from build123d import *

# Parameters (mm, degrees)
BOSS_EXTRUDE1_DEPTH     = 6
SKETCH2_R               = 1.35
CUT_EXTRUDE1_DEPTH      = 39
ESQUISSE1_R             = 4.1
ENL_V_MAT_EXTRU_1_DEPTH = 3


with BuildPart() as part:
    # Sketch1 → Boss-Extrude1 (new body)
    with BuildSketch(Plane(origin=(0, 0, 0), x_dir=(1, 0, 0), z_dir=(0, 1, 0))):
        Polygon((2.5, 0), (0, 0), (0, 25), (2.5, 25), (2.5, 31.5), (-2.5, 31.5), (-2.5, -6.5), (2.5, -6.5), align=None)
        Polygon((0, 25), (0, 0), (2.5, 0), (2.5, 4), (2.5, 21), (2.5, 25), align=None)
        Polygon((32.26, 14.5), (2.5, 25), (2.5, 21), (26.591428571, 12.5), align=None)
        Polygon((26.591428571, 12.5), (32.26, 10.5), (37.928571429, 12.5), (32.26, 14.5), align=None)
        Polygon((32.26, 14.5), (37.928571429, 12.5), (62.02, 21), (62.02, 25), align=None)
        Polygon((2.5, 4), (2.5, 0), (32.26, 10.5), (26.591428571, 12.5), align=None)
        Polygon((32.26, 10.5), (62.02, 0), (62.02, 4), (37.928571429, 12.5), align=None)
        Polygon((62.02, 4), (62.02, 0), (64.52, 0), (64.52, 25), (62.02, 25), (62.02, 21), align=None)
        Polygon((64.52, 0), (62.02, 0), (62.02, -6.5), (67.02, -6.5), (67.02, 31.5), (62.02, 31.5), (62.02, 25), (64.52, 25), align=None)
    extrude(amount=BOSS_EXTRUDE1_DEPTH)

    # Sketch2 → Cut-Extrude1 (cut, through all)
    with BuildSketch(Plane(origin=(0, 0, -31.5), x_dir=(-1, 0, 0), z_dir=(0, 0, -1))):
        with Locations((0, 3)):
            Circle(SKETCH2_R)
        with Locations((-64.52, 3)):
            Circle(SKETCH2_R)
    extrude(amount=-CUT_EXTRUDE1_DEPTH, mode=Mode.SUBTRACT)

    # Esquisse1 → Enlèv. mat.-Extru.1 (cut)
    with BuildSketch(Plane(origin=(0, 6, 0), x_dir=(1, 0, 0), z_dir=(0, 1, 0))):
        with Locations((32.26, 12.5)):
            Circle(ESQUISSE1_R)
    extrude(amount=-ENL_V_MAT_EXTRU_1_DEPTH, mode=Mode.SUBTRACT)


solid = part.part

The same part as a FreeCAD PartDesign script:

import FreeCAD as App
import Part
import Sketcher

V = App.Vector


def add_polygon(sketch, points):
    """Adds a closed chain of lines whose ends are joined by coincident constraints."""
    first, n = sketch.GeometryCount, len(points)
    for a, b in zip(points, points[1:] + points[:1]):
        sketch.addGeometry(Part.LineSegment(App.Vector(*a, 0), App.Vector(*b, 0)), False)
    for i in range(n):
        sketch.addConstraint(Sketcher.Constraint("Coincident", first + i, 2, first + (i + 1) % n, 1))

doc = App.newDocument("Part")
body = doc.addObject("PartDesign::Body", "Body")

sketch1 = doc.addObject("Sketcher::SketchObject", "Sketch")
body.addObject(sketch1)
sketch1.AttachmentSupport = (doc.XZ_Plane, [""])
sketch1.MapMode = "FlatFace"
add_polygon(sketch1, [(2.5, -31.5), (-2.5, -31.5), (-2.5, 6.5), (2.5, 6.5), (2.5, 0), (32.26, -10.5), (62.02, 0), (62.02, 6.5), (67.02, 6.5), (67.02, -31.5), (62.02, -31.5), (62.02, -25), (32.26, -14.5), (2.5, -25)])
add_polygon(sketch1, [(62.02, -4), (37.928571, -12.5), (62.02, -21)])
add_polygon(sketch1, [(2.5, -4), (2.5, -21), (26.591429, -12.5)])
sketch1.addConstraint(Sketcher.Constraint("Horizontal", 0))
sketch1.addConstraint(Sketcher.Constraint("Vertical", 1))
sketch1.addConstraint(Sketcher.Constraint("Horizontal", 2))
sketch1.addConstraint(Sketcher.Constraint("Vertical", 3))
sketch1.addConstraint(Sketcher.Constraint("Vertical", 6))
sketch1.addConstraint(Sketcher.Constraint("Horizontal", 7))
sketch1.addConstraint(Sketcher.Constraint("Vertical", 8))
sketch1.addConstraint(Sketcher.Constraint("Horizontal", 9))
sketch1.addConstraint(Sketcher.Constraint("Vertical", 10))
sketch1.addConstraint(Sketcher.Constraint("Vertical", 13))
sketch1.addConstraint(Sketcher.Constraint("Vertical", 16))
sketch1.addConstraint(Sketcher.Constraint("Vertical", 17))
sketch1.addConstraint(Sketcher.Constraint("PointOnObject", 3, 2, -1))
sketch1.addConstraint(Sketcher.Constraint("PointOnObject", 5, 2, -1))
sketch1.addConstraint(Sketcher.Constraint("Parallel", 4, 11))
sketch1.addConstraint(Sketcher.Constraint("Parallel", 5, 12))
sketch1.addConstraint(Sketcher.Constraint("Parallel", 12, 14))
sketch1.addConstraint(Sketcher.Constraint("Parallel", 11, 15))
sketch1.addConstraint(Sketcher.Constraint("Parallel", 14, 18))
sketch1.addConstraint(Sketcher.Constraint("Parallel", 15, 19))
sketch1.addConstraint(Sketcher.Constraint("Horizontal", 2, 2, 6, 2))
sketch1.addConstraint(Sketcher.Constraint("Horizontal", 0, 2, 8, 2))
sketch1.addConstraint(Sketcher.Constraint("Horizontal", 10, 2, 12, 2))
sketch1.addConstraint(Sketcher.Constraint("Horizontal", 15, 2, 17, 2))
sketch1.addConstraint(Sketcher.Constraint("Horizontal", 14, 2, 18, 2))
sketch1.addConstraint(Sketcher.Constraint("Horizontal", 16, 2, 19, 2))
sketch1.addConstraint(Sketcher.Constraint("Vertical", 6, 2, 9, 2))
sketch1.addConstraint(Sketcher.Constraint("Vertical", 4, 2, 11, 2))
sketch1.addConstraint(Sketcher.Constraint("Vertical", 10, 2, 15, 2))
sketch1.addConstraint(Sketcher.Constraint("Vertical", 13, 2, 17, 2))
sketch1.addConstraint(Sketcher.Constraint("Equal", 2, 7))
sketch1.addConstraint(Sketcher.Constraint("Equal", 6, 10))
sketch1.addConstraint(Sketcher.Constraint("DistanceX", 0, 2, 0, 1, 5.0))
sketch1.addConstraint(Sketcher.Constraint("DistanceY", 1, 1, 1, 2, 38.0))
sketch1.addConstraint(Sketcher.Constraint("DistanceY", 16, 1, 16, 2, 17.0))
sketch1.addConstraint(Sketcher.Constraint("DistanceY", 3, 2, 3, 1, 6.5))
sketch1.addConstraint(Sketcher.Constraint("DistanceY", 15, 2, -1, 1, 21.0))
sketch1.addConstraint(Sketcher.Constraint("DistanceY", 4, 2, 2, 2, 17.0))
sketch1.addConstraint(Sketcher.Constraint("DistanceX", 0, 2, -1, 1, 2.5))
sketch1.addConstraint(Sketcher.Constraint("DistanceX", -1, 1, 4, 2, 32.26))
pad1 = doc.addObject("PartDesign::Pad", "Pad")
body.addObject(pad1)
pad1.Profile = sketch1
pad1.Length = 6
pad1.Reversed = True

sketch2 = doc.addObject("Sketcher::SketchObject", "Sketch001")
body.addObject(sketch2)
sketch2.AttachmentSupport = (doc.XY_Plane, [""])
sketch2.MapMode = "FlatFace"
sketch2.AttachmentOffset = App.Placement(V(0, 0, -31.5), App.Rotation())
sketch2.addGeometry(Part.Circle(V(0, 3, 0), V(0, 0, 1), 1.35), False)
sketch2.addGeometry(Part.Circle(V(64.52, 3, 0), V(0, 0, 1), 1.35), False)
sketch2.addConstraint(Sketcher.Constraint("Equal", 0, 1))
sketch2.addConstraint(Sketcher.Constraint("PointOnObject", 0, 3, -2))
sketch2.addConstraint(Sketcher.Constraint("Horizontal", 0, 3, 1, 3))
sketch2.addConstraint(Sketcher.Constraint("Diameter", 0, 2.7))
sketch2.addConstraint(Sketcher.Constraint("DistanceY", -1, 1, 0, 3, 3.0))
sketch2.addConstraint(Sketcher.Constraint("DistanceX", -1, 1, 1, 3, 64.52))
pocket1 = doc.addObject("PartDesign::Pocket", "Pocket")
body.addObject(pocket1)
pocket1.Profile = sketch2
pocket1.Type = "ThroughAll"
pocket1.Reversed = True

sketch3 = doc.addObject("Sketcher::SketchObject", "Sketch002")
body.addObject(sketch3)
sketch3.AttachmentSupport = (doc.XZ_Plane, [""])
sketch3.MapMode = "FlatFace"
sketch3.AttachmentOffset = App.Placement(V(0, 0, -6), App.Rotation())
sketch3.addGeometry(Part.Circle(V(32.26, -12.5, 0), V(0, 0, 1), 4.1), False)
sketch3.addConstraint(Sketcher.Constraint("Diameter", 0, 8.2))
sketch3.addConstraint(Sketcher.Constraint("DistanceY", 0, 3, -1, 1, 12.5))
sketch3.addConstraint(Sketcher.Constraint("DistanceX", -1, 1, 0, 3, 32.26))
pocket2 = doc.addObject("PartDesign::Pocket", "Pocket001")
body.addObject(pocket2)
pocket2.Profile = sketch3
pocket2.Length = 3
pocket2.Reversed = True

doc.recompute()
